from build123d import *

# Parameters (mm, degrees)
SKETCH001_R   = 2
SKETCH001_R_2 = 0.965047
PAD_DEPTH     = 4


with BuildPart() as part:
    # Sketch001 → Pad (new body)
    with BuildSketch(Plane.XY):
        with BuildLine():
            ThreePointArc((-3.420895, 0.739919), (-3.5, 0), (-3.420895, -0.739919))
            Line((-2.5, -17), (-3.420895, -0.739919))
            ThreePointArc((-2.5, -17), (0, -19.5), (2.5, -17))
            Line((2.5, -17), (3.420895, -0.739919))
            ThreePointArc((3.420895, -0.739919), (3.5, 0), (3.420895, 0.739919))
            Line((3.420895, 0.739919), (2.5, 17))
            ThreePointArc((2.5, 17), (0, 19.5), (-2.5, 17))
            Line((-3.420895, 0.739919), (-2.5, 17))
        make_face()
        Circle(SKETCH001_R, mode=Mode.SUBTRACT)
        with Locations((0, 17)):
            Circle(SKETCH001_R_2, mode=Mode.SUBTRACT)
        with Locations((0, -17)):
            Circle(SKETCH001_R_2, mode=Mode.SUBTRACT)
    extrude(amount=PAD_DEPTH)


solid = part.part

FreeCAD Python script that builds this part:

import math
import FreeCAD as App
import Part
import Sketcher
Q = App.Units.Quantity

doc = App.newDocument("Part")
params = doc.addObject("Spreadsheet::Sheet", "Params")
for row, (alias, value) in enumerate([
    ("sketch1_diameter", "4 mm"),
    ("sketch1_radius", "2.5 mm"),
    ("pad1_length", "4 mm"),
], start=1):
    params.set(f"A{row}", alias)
    params.set(f"B{row}", "=" + value)
    params.setAlias(f"B{row}", alias)

body = doc.addObject("PartDesign::Body", "Body")

sketch1 = body.newObject("Sketcher::SketchObject", "Sketch")
sketch1.AttachmentSupport = (doc.getObject("XY_Plane"), [""])
sketch1.MapMode = "FlatFace"
sketch1.addGeometry([
    Part.ArcOfCircle(Part.Circle(App.Vector(0.000017, 0, 0), App.Vector(0, 0, 1), 3.500017), math.radians(167.795334), math.radians(192.204666)),
    Part.LineSegment(App.Vector(-3.420895, -0.739919, 0), App.Vector(-2.5, -17, 0)),
    Part.ArcOfCircle(Part.Circle(App.Vector(0, -17, 0), App.Vector(0, 0, 1), 2.5), math.radians(180), math.radians(360)),
    Part.LineSegment(App.Vector(2.5, -17, 0), App.Vector(3.420895, -0.739919, 0)),
    Part.ArcOfCircle(Part.Circle(App.Vector(-0.000017, 0, 0), App.Vector(0, 0, 1), 3.500017), math.radians(-12.204666), math.radians(12.204666)),
    Part.LineSegment(App.Vector(3.420895, 0.739919, 0), App.Vector(2.5, 17, 0)),
    Part.ArcOfCircle(Part.Circle(App.Vector(0, 17, 0), App.Vector(0, 0, 1), 2.5), math.radians(0), math.radians(180)),
    Part.LineSegment(App.Vector(-2.5, 17, 0), App.Vector(-3.420895, 0.739919, 0)),
    Part.Circle(App.Vector(0, -17, 0), App.Vector(0, 0, 1), 0.965047),
    Part.Circle(App.Vector(0, 0, 0), App.Vector(0, 0, 1), 2),
    Part.Circle(App.Vector(0, 17, 0), App.Vector(0, 0, 1), 0.965047),
], False)
sketch1.addConstraint([
    Sketcher.Constraint("Coincident", 0, 2, 1, 1),
    Sketcher.Constraint("Coincident", 1, 2, 2, 1),
    Sketcher.Constraint("Coincident", 2, 2, 3, 1),
    Sketcher.Constraint("Coincident", 3, 2, 4, 1),
    Sketcher.Constraint("Coincident", 4, 2, 5, 1),
    Sketcher.Constraint("Coincident", 5, 2, 6, 1),
    Sketcher.Constraint("Coincident", 6, 2, 7, 1),
    Sketcher.Constraint("Coincident", 7, 2, 0, 1),
    Sketcher.Constraint("Coincident", 9, 3, -1, 1),
    Sketcher.Constraint("Coincident", 8, 3, 2, 3),
    Sketcher.Constraint("Coincident", 10, 3, 6, 3),
    Sketcher.Constraint("Equal", 0, 4),
    Sketcher.Constraint("Equal", 2, 6),
    Sketcher.Constraint("Equal", 8, 10),
    Sketcher.Constraint("Symmetric", 0, 3, 4, 3, -1, 1),
    Sketcher.Constraint("Symmetric", 2, 3, 6, 3, -1, 1),
    Sketcher.Constraint("Symmetric", 1, 2, 2, 2, -2),
    Sketcher.Constraint("Symmetric", 0, 2, 3, 2, -2),
    Sketcher.Constraint("Parallel", 1, 5),
    Sketcher.Constraint("Parallel", 3, 7),
    Sketcher.Constraint("Horizontal", 8, 3, 1, 2),
    Sketcher.Constraint("Horizontal", 10, 3, 5, 2),
    Sketcher.Constraint("Horizontal", 5, 2, 6, 2),
    Sketcher.Constraint("Diameter", 9, Q("4 mm")),
    Sketcher.Constraint("Radius", 2, Q("2.5 mm")),
    Sketcher.Constraint("DistanceY", 2, 3, -1, 1, Q("17 mm")),
    Sketcher.Constraint("Diameter", 8, Q("1.930094 mm")),
    Sketcher.Constraint("Radius", 0, Q("3.500017 mm")),
    Sketcher.Constraint("DistanceY", 0, 2, -1, 1, Q("0.739919 mm")),
    Sketcher.Constraint("DistanceX", 0, 2, 3, 2, Q("6.84179 mm")),
])
sketch1.setExpression("Constraints[23]", "Params.sketch1_diameter")
sketch1.setExpression("Constraints[24]", "Params.sketch1_radius")
pad1 = body.newObject("PartDesign::Pad", "Pad")
pad1.Profile = sketch1
pad1.setExpression("Length", "Params.pad1_length")

doc.recompute()
